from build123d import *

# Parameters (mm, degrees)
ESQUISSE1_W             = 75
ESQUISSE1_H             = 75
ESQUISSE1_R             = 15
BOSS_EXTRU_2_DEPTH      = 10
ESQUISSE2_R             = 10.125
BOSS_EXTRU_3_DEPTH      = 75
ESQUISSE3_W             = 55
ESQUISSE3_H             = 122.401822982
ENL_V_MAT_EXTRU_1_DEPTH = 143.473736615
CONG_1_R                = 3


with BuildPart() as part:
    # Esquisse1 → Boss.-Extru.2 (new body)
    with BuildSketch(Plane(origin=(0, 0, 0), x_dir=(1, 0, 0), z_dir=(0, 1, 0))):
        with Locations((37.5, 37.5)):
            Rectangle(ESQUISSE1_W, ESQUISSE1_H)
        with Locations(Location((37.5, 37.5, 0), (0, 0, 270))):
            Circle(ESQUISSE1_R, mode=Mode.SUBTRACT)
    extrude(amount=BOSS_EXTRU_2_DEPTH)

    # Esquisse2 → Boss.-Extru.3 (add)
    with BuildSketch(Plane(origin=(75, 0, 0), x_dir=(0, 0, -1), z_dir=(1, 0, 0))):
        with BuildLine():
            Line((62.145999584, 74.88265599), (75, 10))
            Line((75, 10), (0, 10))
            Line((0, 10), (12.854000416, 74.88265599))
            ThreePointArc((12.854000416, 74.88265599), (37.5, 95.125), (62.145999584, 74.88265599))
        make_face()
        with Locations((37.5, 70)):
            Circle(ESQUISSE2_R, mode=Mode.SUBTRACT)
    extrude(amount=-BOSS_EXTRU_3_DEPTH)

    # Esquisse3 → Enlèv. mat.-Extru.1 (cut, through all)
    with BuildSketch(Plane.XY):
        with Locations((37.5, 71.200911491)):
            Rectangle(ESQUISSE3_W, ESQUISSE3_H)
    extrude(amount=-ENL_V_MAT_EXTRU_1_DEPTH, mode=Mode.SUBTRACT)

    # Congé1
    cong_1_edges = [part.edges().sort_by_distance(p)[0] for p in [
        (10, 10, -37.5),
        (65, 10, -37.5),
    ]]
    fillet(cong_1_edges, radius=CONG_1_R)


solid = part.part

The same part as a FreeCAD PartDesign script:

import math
import FreeCAD as App
import Part
import Sketcher
from FreeCAD import Vector
Q = App.Units.Quantity


def edges_at(feature, points):
    """Names of the edges that pass closest to the given points."""
    edges = feature.Shape.Edges
    near = lambda p: min(range(len(edges)), key=lambda i: edges[i].distToShape(Part.Vertex(*p))[0])
    return sorted({f"Edge{near(p) + 1}" for p in points})

doc = App.newDocument("Part")
params = doc.addObject("Spreadsheet::Sheet", "Params")
for row, (alias, value) in enumerate([
    ("sketch1_diameter", "30 mm"),
    ("sketch1_width", "75 mm"),
    ("pad1_length", "10 mm"),
    ("sketch2_diameter", "20.25 mm"),
    ("sketch2_height", "75 mm"),
    ("pad2_length", "75 mm"),
    ("sketch3_width", "55 mm"),
    ("fillet_radius", "3 mm"),
], start=1):
    params.set(f"A{row}", alias)
    params.set(f"B{row}", "=" + value)
    params.setAlias(f"B{row}", alias)

body = doc.addObject("PartDesign::Body", "Body")

sketch1 = body.newObject("Sketcher::SketchObject", "Sketch")
sketch1.AttachmentSupport = (doc.getObject("XZ_Plane"), [""])
sketch1.MapMode = "FlatFace"
sketch1.addGeometry(Part.LineSegment(Vector(0, -75, 0), Vector(0, 0, 0)), False)
sketch1.addGeometry(Part.LineSegment(Vector(0, 0, 0), Vector(75, 0, 0)), False)
sketch1.addGeometry(Part.LineSegment(Vector(75, 0, 0), Vector(75, -75, 0)), False)
sketch1.addGeometry(Part.LineSegment(Vector(75, -75, 0), Vector(0, -75, 0)), False)
sketch1.addGeometry(Part.Circle(Vector(38, -38, 0), Vector(0, 0, 1), 15), False)
sketch1.addConstraint(Sketcher.Constraint("Coincident", 0, 2, 1, 1))
sketch1.addConstraint(Sketcher.Constraint("Coincident", 1, 2, 2, 1))
sketch1.addConstraint(Sketcher.Constraint("Coincident", 2, 2, 3, 1))
sketch1.addConstraint(Sketcher.Constraint("Coincident", 3, 2, 0, 1))
sketch1.addConstraint(Sketcher.Constraint("Vertical", 0))
sketch1.addConstraint(Sketcher.Constraint("Horizontal", 1))
sketch1.addConstraint(Sketcher.Constraint("Vertical", 2))
sketch1.addConstraint(Sketcher.Constraint("Horizontal", 3))
sketch1.addConstraint(Sketcher.Constraint("Coincident", 0, 2, -1, 1))
sketch1.addConstraint(Sketcher.Constraint("Equal", 3, 0))
sketch1.addConstraint(Sketcher.Constraint("Diameter", 4, Q("30 mm")))
sketch1.addConstraint(Sketcher.Constraint("DistanceX", 1, 1, 1, 2, Q("75 mm")))
sketch1.addConstraint(Sketcher.Constraint("DistanceX", -1, 1, 4, 3, Q("37.5 mm")))
sketch1.addConstraint(Sketcher.Constraint("DistanceY", 4, 3, -1, 1, Q("37.5 mm")))
sketch1.setExpression("Constraints[10]", "Params.sketch1_diameter")
sketch1.setExpression("Constraints[11]", "Params.sketch1_width")
pad1 = body.newObject("PartDesign::Pad", "Pad")
pad1.Profile = sketch1
pad1.setExpression("Length", "Params.pad1_length")
pad1.Reversed = True

sketch2 = body.newObject("Sketcher::SketchObject", "Sketch001")
sketch2.AttachmentSupport = (doc.getObject("YZ_Plane"), [""])
sketch2.MapMode = "FlatFace"
sketch2.AttachmentOffset = App.Placement(Vector(0, 0, 75), App.Rotation())
sketch2.addGeometry(Part.LineSegment(Vector(10, -75, 0), Vector(75, -62, 0)), False)
sketch2.addGeometry(Part.ArcOfCircle(Part.Circle(Vector(70, -38, 0), Vector(0, 0, 1), 25), math.radians(-79), math.radians(79)), False)
sketch2.addGeometry(Part.LineSegment(Vector(75, -13, 0), Vector(10, 0, 0)), False)
sketch2.addGeometry(Part.LineSegment(Vector(10, 0, 0), Vector(10, -75, 0)), False)
sketch2.addGeometry(Part.Circle(Vector(70, -38, 0), Vector(0, 0, 1), 10), False)
sketch2.addConstraint(Sketcher.Constraint("Tangent", 0, 2, 1, 1))
sketch2.addConstraint(Sketcher.Constraint("Tangent", 1, 2, 2, 1))
sketch2.addConstraint(Sketcher.Constraint("Coincident", 2, 2, 3, 1))
sketch2.addConstraint(Sketcher.Constraint("Coincident", 3, 2, 0, 1))
sketch2.addConstraint(Sketcher.Constraint("Vertical", 3))
sketch2.addConstraint(Sketcher.Constraint("Coincident", 4, 3, 1, 3))
sketch2.addConstraint(Sketcher.Constraint("PointOnObject", 2, 2, -1))
sketch2.addConstraint(Sketcher.Constraint("Vertical", 0, 2, 1, 2))
sketch2.addConstraint(Sketcher.Constraint("Diameter", 4, Q("20.25 mm")))
sketch2.addConstraint(Sketcher.Constraint("DistanceY", 3, 2, 3, 1, Q("75 mm")))
sketch2.addConstraint(Sketcher.Constraint("DistanceX", -1, 1, 1, 3, Q("70 mm")))
sketch2.addConstraint(Sketcher.Constraint("DistanceX", -1, 1, 2, 2, Q("10 mm")))
sketch2.addConstraint(Sketcher.Constraint("Radius", 1, Q("25.125 mm")))
sketch2.setExpression("Constraints[8]", "Params.sketch2_diameter")
sketch2.setExpression("Constraints[9]", "Params.sketch2_height")
pad2 = body.newObject("PartDesign::Pad", "Pad001")
pad2.Profile = sketch2
pad2.setExpression("Length", "Params.pad2_length")
pad2.Reversed = True

sketch3 = body.newObject("Sketcher::SketchObject", "Sketch002")
sketch3.AttachmentSupport = (doc.getObject("XY_Plane"), [""])
sketch3.MapMode = "FlatFace"
sketch3.addGeometry(Part.LineSegment(Vector(10, 132, 0), Vector(10, 10, 0)), False)
sketch3.addGeometry(Part.LineSegment(Vector(10, 10, 0), Vector(65, 10, 0)), False)
sketch3.addGeometry(Part.LineSegment(Vector(65, 10, 0), Vector(65, 132, 0)), False)
sketch3.addGeometry(Part.LineSegment(Vector(65, 132, 0), Vector(10, 132, 0)), False)
sketch3.addConstraint(Sketcher.Constraint("Coincident", 0, 2, 1, 1))
sketch3.addConstraint(Sketcher.Constraint("Coincident", 1, 2, 2, 1))
sketch3.addConstraint(Sketcher.Constraint("Coincident", 2, 2, 3, 1))
sketch3.addConstraint(Sketcher.Constraint("Coincident", 3, 2, 0, 1))
sketch3.addConstraint(Sketcher.Constraint("Vertical", 0))
sketch3.addConstraint(Sketcher.Constraint("Horizontal", 1))
sketch3.addConstraint(Sketcher.Constraint("Vertical", 2))
sketch3.addConstraint(Sketcher.Constraint("Horizontal", 3))
sketch3.addConstraint(Sketcher.Constraint("DistanceX", 1, 1, 1, 2, Q("55 mm")))
sketch3.addConstraint(Sketcher.Constraint("DistanceX", -1, 1, 0, 2, Q("10 mm")))
sketch3.addConstraint(Sketcher.Constraint("DistanceY", -1, 1, 0, 2, Q("10 mm")))
sketch3.addConstraint(Sketcher.Constraint("DistanceY", 0, 2, 0, 1, Q("122.401823 mm")))
sketch3.setExpression("Constraints[8]", "Params.sketch3_width")
pocket1 = body.newObject("PartDesign::Pocket", "Pocket")
pocket1.Profile = sketch3
pocket1.Type = "ThroughAll"
doc.recompute()

fillet = body.newObject("PartDesign::Fillet", "Fillet")
fillet.Base = (pocket1, edges_at(pocket1, [(10, 10, -37.5), (65, 10, -37.5)]))
fillet.setExpression("Radius", "Params.fillet_radius")

doc.recompute()
